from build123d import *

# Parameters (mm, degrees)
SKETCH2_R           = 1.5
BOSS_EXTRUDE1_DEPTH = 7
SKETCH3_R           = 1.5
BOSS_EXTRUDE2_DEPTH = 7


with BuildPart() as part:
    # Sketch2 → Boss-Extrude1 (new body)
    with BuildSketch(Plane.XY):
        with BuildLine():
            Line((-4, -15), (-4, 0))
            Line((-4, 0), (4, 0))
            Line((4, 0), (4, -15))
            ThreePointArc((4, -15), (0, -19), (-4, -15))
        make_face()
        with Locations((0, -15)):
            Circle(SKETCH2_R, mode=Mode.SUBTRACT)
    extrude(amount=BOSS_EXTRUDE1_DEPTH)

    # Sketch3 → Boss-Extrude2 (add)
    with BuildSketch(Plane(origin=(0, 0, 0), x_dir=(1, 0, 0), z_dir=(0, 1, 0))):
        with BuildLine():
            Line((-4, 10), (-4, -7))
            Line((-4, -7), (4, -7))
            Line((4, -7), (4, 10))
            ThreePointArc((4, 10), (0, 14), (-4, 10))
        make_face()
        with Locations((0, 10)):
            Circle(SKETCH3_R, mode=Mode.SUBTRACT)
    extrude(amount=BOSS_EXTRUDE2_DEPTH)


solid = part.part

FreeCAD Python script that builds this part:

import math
import FreeCAD as App
import Part
import Sketcher

doc = App.newDocument("Part")
body = doc.addObject("PartDesign::Body", "Body")

sketch1 = body.newObject("Sketcher::SketchObject", "Sketch")
sketch1.AttachmentSupport = (doc.getObject("XY_Plane"), [""])
sketch1.MapMode = "FlatFace"
sketch1.addGeometry(Part.LineSegment(App.Vector(-4, 0, 0), App.Vector(-4, -15, 0)), False)
sketch1.addGeometry(Part.ArcOfCircle(Part.Circle(App.Vector(0, -15, 0), App.Vector(0, 0, 1), 4), math.radians(180), math.radians(360)), False)
sketch1.addGeometry(Part.LineSegment(App.Vector(4, -15, 0), App.Vector(4, 0, 0)), False)
sketch1.addGeometry(Part.LineSegment(App.Vector(4, 0, 0), App.Vector(-4, 0, 0)), False)
sketch1.addGeometry(Part.Circle(App.Vector(0, -15, 0), App.Vector(0, 0, 1), 1.5), False)
sketch1.addConstraint(Sketcher.Constraint("Tangent", 0, 2, 1, 1))
sketch1.addConstraint(Sketcher.Constraint("Tangent", 1, 2, 2, 1))
sketch1.addConstraint(Sketcher.Constraint("Coincident", 2, 2, 3, 1))
sketch1.addConstraint(Sketcher.Constraint("Coincident", 3, 2, 0, 1))
sketch1.addConstraint(Sketcher.Constraint("Vertical", 0))
sketch1.addConstraint(Sketcher.Constraint("Vertical", 2))
sketch1.addConstraint(Sketcher.Constraint("Horizontal", 3))
sketch1.addConstraint(Sketcher.Constraint("Coincident", 4, 3, 1, 3))
sketch1.addConstraint(Sketcher.Constraint("Symmetric", 2, 2, 3, 2, -1, 1))
sketch1.addConstraint(Sketcher.Constraint("Diameter", 4, 3.0))
sketch1.addConstraint(Sketcher.Constraint("Radius", 1, 4.0))
sketch1.addConstraint(Sketcher.Constraint("DistanceY", 0, 2, 0, 1, 15.0))
pad1 = body.newObject("PartDesign::Pad", "Pad")
pad1.Profile = sketch1
pad1.Length = 7

sketch2 = body.newObject("Sketcher::SketchObject", "Sketch001")
sketch2.AttachmentSupport = (doc.getObject("XZ_Plane"), [""])
sketch2.MapMode = "FlatFace"
sketch2.addGeometry(Part.LineSegment(App.Vector(-4, -10, 0), App.Vector(-4, 7, 0)), False)
sketch2.addGeometry(Part.LineSegment(App.Vector(-4, 7, 0), App.Vector(4, 7, 0)), False)
sketch2.addGeometry(Part.LineSegment(App.Vector(4, 7, 0), App.Vector(4, -10, 0)), False)
sketch2.addGeometry(Part.ArcOfCircle(Part.Circle(App.Vector(0, -10, 0), App.Vector(0, 0, 1), 4), math.radians(180), math.radians(360)), False)
sketch2.addGeometry(Part.Circle(App.Vector(0, -10, 0), App.Vector(0, 0, 1), 1.5), False)
sketch2.addConstraint(Sketcher.Constraint("Coincident", 0, 2, 1, 1))
sketch2.addConstraint(Sketcher.Constraint("Coincident", 1, 2, 2, 1))
sketch2.addConstraint(Sketcher.Constraint("Tangent", 2, 2, 3, 2))
sketch2.addConstraint(Sketcher.Constraint("Tangent", 3, 1, 0, 1))
sketch2.addConstraint(Sketcher.Constraint("Vertical", 0))
sketch2.addConstraint(Sketcher.Constraint("Horizontal", 1))
sketch2.addConstraint(Sketcher.Constraint("Vertical", 2))
sketch2.addConstraint(Sketcher.Constraint("Coincident", 4, 3, 3, 3))
sketch2.addConstraint(Sketcher.Constraint("PointOnObject", 3, 3, -2))
sketch2.addConstraint(Sketcher.Constraint("Diameter", 4, 3.0))
sketch2.addConstraint(Sketcher.Constraint("Radius", 3, 4.0))
sketch2.addConstraint(Sketcher.Constraint("DistanceY", 0, 1, 0, 2, 17.0))
sketch2.addConstraint(Sketcher.Constraint("DistanceY", 3, 3, -1, 1, 10.0))
pad2 = body.newObject("PartDesign::Pad", "Pad001")
pad2.Profile = sketch2
pad2.Length = 7
pad2.Reversed = True

doc.recompute()
